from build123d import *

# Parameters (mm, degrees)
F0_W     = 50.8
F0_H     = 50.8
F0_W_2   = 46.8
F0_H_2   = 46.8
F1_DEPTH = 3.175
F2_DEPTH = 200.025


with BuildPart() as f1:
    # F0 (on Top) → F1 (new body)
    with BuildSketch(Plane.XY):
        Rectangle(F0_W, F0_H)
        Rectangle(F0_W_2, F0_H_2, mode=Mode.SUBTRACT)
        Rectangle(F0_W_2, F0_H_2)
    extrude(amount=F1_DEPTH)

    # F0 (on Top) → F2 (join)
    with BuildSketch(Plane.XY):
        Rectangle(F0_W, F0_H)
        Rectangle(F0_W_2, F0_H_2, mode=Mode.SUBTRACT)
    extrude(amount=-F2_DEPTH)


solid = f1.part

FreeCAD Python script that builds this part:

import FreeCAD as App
import Part
import Sketcher
Q = App.Units.Quantity


def add_polygon(sketch, points):
    """Adds a closed chain of lines whose ends are joined by coincident constraints."""
    first, n = sketch.GeometryCount, len(points)
    for a, b in zip(points, points[1:] + points[:1]):
        sketch.addGeometry(Part.LineSegment(App.Vector(*a, 0), App.Vector(*b, 0)), False)
    for i in range(n):
        sketch.addConstraint(Sketcher.Constraint("Coincident", first + i, 2, first + (i + 1) % n, 1))

doc = App.newDocument("Part")
body = doc.addObject("PartDesign::Body", "Body")

sketch1 = body.newObject("Sketcher::SketchObject", "Sketch")
sketch1.AttachmentSupport = (doc.getObject("XY_Plane"), [""])
sketch1.MapMode = "FlatFace"
add_polygon(sketch1, [(-25.4, 25.4), (-25.4, -25.4), (25.4, -25.4), (25.4, 25.4)])
sketch1.addConstraint([
    Sketcher.Constraint("Vertical", 0),
    Sketcher.Constraint("Horizontal", 1),
    Sketcher.Constraint("Vertical", 2),
    Sketcher.Constraint("Horizontal", 3),
    Sketcher.Constraint("Symmetric", 0, 2, 2, 2, -1, 1),
    Sketcher.Constraint("Equal", 3, 0),
    Sketcher.Constraint("DistanceX", 1, 1, 1, 2, Q("2 in")),
])
pad1 = body.newObject("PartDesign::Pad", "Pad")
pad1.Profile = sketch1
pad1.Length = Q("0.125 in")

sketch2 = body.newObject("Sketcher::SketchObject", "Sketch001")
sketch2.AttachmentSupport = (doc.getObject("XY_Plane"), [""])
sketch2.MapMode = "FlatFace"
add_polygon(sketch2, [(-25.4, 25.4), (-25.4, -25.4), (25.4, -25.4), (25.4, 25.4)])
add_polygon(sketch2, [(23.4, -23.4), (-23.4, -23.4), (-23.4, 23.4), (23.4, 23.4)])
sketch2.addConstraint([
    Sketcher.Constraint("Vertical", 0),
    Sketcher.Constraint("Horizontal", 1),
    Sketcher.Constraint("Vertical", 2),
    Sketcher.Constraint("Horizontal", 3),
    Sketcher.Constraint("Horizontal", 4),
    Sketcher.Constraint("Vertical", 5),
    Sketcher.Constraint("Horizontal", 6),
    Sketcher.Constraint("Vertical", 7),
    Sketcher.Constraint("Symmetric", 0, 2, 2, 2, -1, 1),
    Sketcher.Constraint("Symmetric", 4, 2, 6, 2, -1, 1),
    Sketcher.Constraint("Equal", 3, 0),
    Sketcher.Constraint("Equal", 6, 5),
    Sketcher.Constraint("DistanceX", 1, 1, 1, 2, Q("2 in")),
    Sketcher.Constraint("DistanceX", 4, 2, 4, 1, 46.8),
])
pad2 = body.newObject("PartDesign::Pad", "Pad001")
pad2.Profile = sketch2
pad2.Length = Q("7.875 in")
pad2.Reversed = True

doc.recompute()
